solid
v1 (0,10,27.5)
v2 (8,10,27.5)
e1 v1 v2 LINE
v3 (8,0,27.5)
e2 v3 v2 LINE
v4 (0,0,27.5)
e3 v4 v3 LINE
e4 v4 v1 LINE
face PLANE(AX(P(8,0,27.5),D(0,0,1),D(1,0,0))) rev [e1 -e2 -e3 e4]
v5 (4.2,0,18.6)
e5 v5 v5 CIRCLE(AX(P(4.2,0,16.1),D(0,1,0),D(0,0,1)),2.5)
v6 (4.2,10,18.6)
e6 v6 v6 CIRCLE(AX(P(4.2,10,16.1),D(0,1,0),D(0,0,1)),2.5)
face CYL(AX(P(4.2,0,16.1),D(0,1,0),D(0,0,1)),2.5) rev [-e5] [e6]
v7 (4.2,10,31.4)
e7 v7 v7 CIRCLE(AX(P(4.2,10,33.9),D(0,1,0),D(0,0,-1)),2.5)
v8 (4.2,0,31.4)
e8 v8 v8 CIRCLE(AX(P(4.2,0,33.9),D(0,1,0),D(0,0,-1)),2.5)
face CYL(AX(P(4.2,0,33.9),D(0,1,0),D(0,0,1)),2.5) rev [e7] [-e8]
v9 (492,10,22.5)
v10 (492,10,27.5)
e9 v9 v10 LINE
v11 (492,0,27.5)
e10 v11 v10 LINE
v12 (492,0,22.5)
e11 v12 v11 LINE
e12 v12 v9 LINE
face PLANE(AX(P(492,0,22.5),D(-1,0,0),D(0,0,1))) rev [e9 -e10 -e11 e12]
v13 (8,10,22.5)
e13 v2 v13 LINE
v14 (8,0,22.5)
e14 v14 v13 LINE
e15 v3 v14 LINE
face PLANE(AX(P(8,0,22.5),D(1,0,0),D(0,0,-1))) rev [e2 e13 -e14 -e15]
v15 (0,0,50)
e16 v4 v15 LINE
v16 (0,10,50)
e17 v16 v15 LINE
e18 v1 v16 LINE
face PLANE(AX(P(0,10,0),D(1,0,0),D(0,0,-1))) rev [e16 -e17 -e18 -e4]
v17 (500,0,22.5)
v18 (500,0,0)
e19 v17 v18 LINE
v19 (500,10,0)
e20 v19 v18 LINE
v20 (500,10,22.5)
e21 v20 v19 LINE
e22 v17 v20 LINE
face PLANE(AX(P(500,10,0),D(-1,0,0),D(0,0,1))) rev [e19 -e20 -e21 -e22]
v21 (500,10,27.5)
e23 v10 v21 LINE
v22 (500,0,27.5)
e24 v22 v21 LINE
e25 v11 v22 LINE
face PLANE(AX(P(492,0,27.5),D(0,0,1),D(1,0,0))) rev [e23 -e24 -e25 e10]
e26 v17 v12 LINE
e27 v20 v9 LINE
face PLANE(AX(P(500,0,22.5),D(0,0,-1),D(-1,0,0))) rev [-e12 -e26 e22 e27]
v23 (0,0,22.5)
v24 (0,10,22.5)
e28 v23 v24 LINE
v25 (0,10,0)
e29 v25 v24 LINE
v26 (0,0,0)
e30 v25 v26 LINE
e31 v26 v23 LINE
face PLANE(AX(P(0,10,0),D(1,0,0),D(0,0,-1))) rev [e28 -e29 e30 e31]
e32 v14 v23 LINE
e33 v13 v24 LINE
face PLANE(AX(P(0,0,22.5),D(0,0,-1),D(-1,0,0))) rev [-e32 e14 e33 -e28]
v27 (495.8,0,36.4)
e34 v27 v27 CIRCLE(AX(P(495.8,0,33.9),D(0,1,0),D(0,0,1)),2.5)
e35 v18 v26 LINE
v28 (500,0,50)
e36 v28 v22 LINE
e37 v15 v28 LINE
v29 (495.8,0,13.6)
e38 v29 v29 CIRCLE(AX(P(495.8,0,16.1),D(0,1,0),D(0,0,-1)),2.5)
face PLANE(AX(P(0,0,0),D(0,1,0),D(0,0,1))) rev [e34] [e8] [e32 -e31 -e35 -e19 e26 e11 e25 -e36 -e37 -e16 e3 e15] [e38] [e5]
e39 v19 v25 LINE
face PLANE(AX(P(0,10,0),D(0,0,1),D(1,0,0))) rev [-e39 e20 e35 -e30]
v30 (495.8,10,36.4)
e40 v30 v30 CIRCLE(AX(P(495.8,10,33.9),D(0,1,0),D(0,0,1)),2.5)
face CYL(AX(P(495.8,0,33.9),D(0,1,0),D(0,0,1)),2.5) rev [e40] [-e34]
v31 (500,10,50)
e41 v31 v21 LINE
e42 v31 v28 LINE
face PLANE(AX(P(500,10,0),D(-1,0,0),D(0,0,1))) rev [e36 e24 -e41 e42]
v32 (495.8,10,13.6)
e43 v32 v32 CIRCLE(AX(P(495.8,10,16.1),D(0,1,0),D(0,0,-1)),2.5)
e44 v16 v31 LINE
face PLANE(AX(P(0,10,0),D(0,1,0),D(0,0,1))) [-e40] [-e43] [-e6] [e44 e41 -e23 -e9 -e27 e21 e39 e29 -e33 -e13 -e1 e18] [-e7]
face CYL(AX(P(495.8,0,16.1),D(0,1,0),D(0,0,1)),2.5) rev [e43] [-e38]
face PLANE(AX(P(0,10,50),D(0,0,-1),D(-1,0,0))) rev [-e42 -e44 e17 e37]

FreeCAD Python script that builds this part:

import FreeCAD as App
import Part
import Sketcher

V = App.Vector
Q = App.Units.Quantity


def add_polygon(sketch, points):
    """Adds a closed chain of lines whose ends are joined by coincident constraints."""
    first, n = sketch.GeometryCount, len(points)
    for a, b in zip(points, points[1:] + points[:1]):
        sketch.addGeometry(Part.LineSegment(App.Vector(*a, 0), App.Vector(*b, 0)), False)
    for i in range(n):
        sketch.addConstraint(Sketcher.Constraint("Coincident", first + i, 2, first + (i + 1) % n, 1))

doc = App.newDocument("Part")
body = doc.addObject("PartDesign::Body", "Body")

# Sketch on XZ plane
sketch1 = body.newObject("Sketcher::SketchObject", "Sketch")
sketch1.AttachmentSupport = (doc.getObject("XZ_Plane"), [""])
sketch1.MapMode = "FlatFace"
add_polygon(sketch1, [(0, 0), (0, 50), (500, 50), (500, 0)])  # lines 0-3
sketch1.addConstraint(Sketcher.Constraint("Vertical", 0))
sketch1.addConstraint(Sketcher.Constraint("Horizontal", 1))
sketch1.addConstraint(Sketcher.Constraint("Vertical", 2))
sketch1.addConstraint(Sketcher.Constraint("Horizontal", 3))
sketch1.addConstraint(Sketcher.Constraint("Coincident", 3, 2, -1, 1))
sketch1.addConstraint(Sketcher.Constraint("DistanceX", 1, 1, 1, 2, Q("500 mm")))
sketch1.addConstraint(Sketcher.Constraint("DistanceY", 0, 1, 0, 2, Q("50 mm")))
pad1 = body.newObject("PartDesign::Pad", "Pad")
pad1.Profile = sketch1
pad1.Length = 10
pad1.Reversed = True

# Sketch on XZ plane
sketch2 = body.newObject("Sketcher::SketchObject", "Sketch001")
sketch2.AttachmentSupport = (doc.getObject("XZ_Plane"), [""])
sketch2.MapMode = "FlatFace"
sketch2.AttachmentOffset = App.Placement(V(0, 0, -10), App.Rotation())
sketch2.addGeometry(Part.Circle(V(4.2, 16.1, 0), V(0, 0, 1), 2.5), False)  # 0
sketch2.addGeometry(Part.Circle(V(4.2, 33.9, 0), V(0, 0, 1), 2.5), False)  # 1
sketch2.addGeometry(Part.Circle(V(495.8, 33.9, 0), V(0, 0, 1), 2.5), False)  # 2
sketch2.addGeometry(Part.Circle(V(495.8, 16.1, 0), V(0, 0, 1), 2.5), False)  # 3
add_polygon(sketch2, [(0, 22.5), (0, 27.5), (8, 27.5), (8, 22.5)])  # lines 4-7
add_polygon(sketch2, [(500, 27.5), (500, 22.5), (492, 22.5), (492, 27.5)])  # lines 8-11
sketch2.addConstraint(Sketcher.Constraint("Vertical", 4))
sketch2.addConstraint(Sketcher.Constraint("Horizontal", 5))
sketch2.addConstraint(Sketcher.Constraint("Vertical", 6))
sketch2.addConstraint(Sketcher.Constraint("Horizontal", 7))
sketch2.addConstraint(Sketcher.Constraint("Vertical", 8))
sketch2.addConstraint(Sketcher.Constraint("Horizontal", 9))
sketch2.addConstraint(Sketcher.Constraint("Vertical", 10))
sketch2.addConstraint(Sketcher.Constraint("Horizontal", 11))
sketch2.addConstraint(Sketcher.Constraint("Equal", 0, 1))
sketch2.addConstraint(Sketcher.Constraint("Equal", 1, 2))
sketch2.addConstraint(Sketcher.Constraint("Equal", 2, 3))
sketch2.addConstraint(Sketcher.Constraint("PointOnObject", 4, 2, -2))
sketch2.addConstraint(Sketcher.Constraint("Horizontal", 1, 3, 2, 3))
sketch2.addConstraint(Sketcher.Constraint("Horizontal", 0, 3, 3, 3))
sketch2.addConstraint(Sketcher.Constraint("Horizontal", 7, 2, 8, 2))
sketch2.addConstraint(Sketcher.Constraint("Horizontal", 5, 2, 10, 2))
sketch2.addConstraint(Sketcher.Constraint("Vertical", 0, 3, 1, 3))
sketch2.addConstraint(Sketcher.Constraint("Vertical", 2, 3, 3, 3))
sketch2.addConstraint(Sketcher.Constraint("Equal", 7, 9))
sketch2.addConstraint(Sketcher.Constraint("Diameter", 0, Q("5 mm")))
sketch2.addConstraint(Sketcher.Constraint("DistanceX", 5, 1, 5, 2, Q("8 mm")))
sketch2.addConstraint(Sketcher.Constraint("DistanceY", 4, 1, 4, 2, Q("5 mm")))
sketch2.addConstraint(Sketcher.Constraint("DistanceX", -1, 1, 8, 2, Q("500 mm")))
sketch2.addConstraint(Sketcher.Constraint("DistanceX", -1, 1, 0, 3, Q("4.2 mm")))
sketch2.addConstraint(Sketcher.Constraint("DistanceY", -1, 1, 0, 3, Q("16.1 mm")))
sketch2.addConstraint(Sketcher.Constraint("DistanceY", -1, 1, 1, 3, Q("33.9 mm")))
sketch2.addConstraint(Sketcher.Constraint("DistanceX", -1, 1, 2, 3, Q("495.8 mm")))
sketch2.addConstraint(Sketcher.Constraint("DistanceY", -1, 1, 4, 2, Q("27.5 mm")))
pocket1 = body.newObject("PartDesign::Pocket", "Pocket")
pocket1.Profile = sketch2
pocket1.Length = 10
pocket1.Reversed = True

doc.recompute()
